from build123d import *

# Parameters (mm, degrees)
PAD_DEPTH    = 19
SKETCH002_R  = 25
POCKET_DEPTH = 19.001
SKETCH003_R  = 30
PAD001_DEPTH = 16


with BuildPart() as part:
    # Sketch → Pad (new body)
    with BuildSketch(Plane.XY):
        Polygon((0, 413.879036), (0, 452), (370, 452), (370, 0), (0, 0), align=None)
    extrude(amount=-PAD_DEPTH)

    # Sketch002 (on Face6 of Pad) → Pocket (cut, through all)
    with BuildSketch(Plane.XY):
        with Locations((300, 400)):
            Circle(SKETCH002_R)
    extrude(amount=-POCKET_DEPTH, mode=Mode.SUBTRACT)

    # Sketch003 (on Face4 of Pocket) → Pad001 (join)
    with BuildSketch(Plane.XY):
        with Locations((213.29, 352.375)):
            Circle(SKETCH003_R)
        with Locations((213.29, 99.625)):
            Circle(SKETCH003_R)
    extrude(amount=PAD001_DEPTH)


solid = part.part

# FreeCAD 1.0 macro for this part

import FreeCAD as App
import Part
import Sketcher

doc = App.newDocument("Part")
body = doc.addObject("PartDesign::Body", "Body")

# Sketch on XY plane
sketch1 = body.newObject("Sketcher::SketchObject", "Sketch")
sketch1.AttachmentSupport = (doc.getObject("XY_Plane"), [""])
sketch1.MapMode = "FlatFace"
sketch1.addGeometry([
    Part.LineSegment(App.Vector(0, 452, 0), App.Vector(0, 0, 0)),
    Part.LineSegment(App.Vector(0, 0, 0), App.Vector(370, 0, 0)),
    Part.LineSegment(App.Vector(370, 0, 0), App.Vector(370, 452, 0)),
    Part.LineSegment(App.Vector(370, 452, 0), App.Vector(0, 452, 0)),
], False)
sketch1.addConstraint([
    Sketcher.Constraint("Coincident", 0, 2, 1, 1),
    Sketcher.Constraint("Coincident", 1, 2, 2, 1),
    Sketcher.Constraint("Coincident", 2, 2, 3, 1),
    Sketcher.Constraint("Coincident", 3, 2, 0, 1),
    Sketcher.Constraint("Vertical", 0),
    Sketcher.Constraint("Horizontal", 1),
    Sketcher.Constraint("Vertical", 2),
    Sketcher.Constraint("Horizontal", 3),
    Sketcher.Constraint("Coincident", 0, 2, -1, 1),
    Sketcher.Constraint("DistanceX", 1, 1, 1, 2, 370.0),
    Sketcher.Constraint("DistanceY", 0, 2, 0, 1, 452.0),
])
pad1 = body.newObject("PartDesign::Pad", "Pad")
pad1.Profile = sketch1
pad1.Length = 19
pad1.Reversed = True

# Sketch on XY plane
sketch2 = body.newObject("Sketcher::SketchObject", "Sketch001")
sketch2.AttachmentSupport = (doc.getObject("XY_Plane"), [""])
sketch2.MapMode = "FlatFace"
sketch2.addGeometry(Part.Circle(App.Vector(300, 400, 0), App.Vector(0, 0, 1), 25), False)
sketch2.addConstraint([
    Sketcher.Constraint("Diameter", 0, 50.0),
    Sketcher.Constraint("DistanceX", -1, 1, 0, 3, 300.0),
    Sketcher.Constraint("DistanceY", -1, 1, 0, 3, 400.0),
])
pocket1 = body.newObject("PartDesign::Pocket", "Pocket")
pocket1.Profile = sketch2
pocket1.Type = "ThroughAll"

# Sketch on XY plane
sketch3 = body.newObject("Sketcher::SketchObject", "Sketch002")
sketch3.AttachmentSupport = (doc.getObject("XY_Plane"), [""])
sketch3.MapMode = "FlatFace"
sketch3.addGeometry([
    Part.Circle(App.Vector(213, 352, 0), App.Vector(0, 0, 1), 30),
    Part.Circle(App.Vector(213, 100, 0), App.Vector(0, 0, 1), 30),
], False)
sketch3.addConstraint([
    Sketcher.Constraint("Equal", 0, 1),
    Sketcher.Constraint("Vertical", 0, 3, 1, 3),
    Sketcher.Constraint("Diameter", 0, 60.0),
    Sketcher.Constraint("DistanceX", -1, 1, 0, 3, 213.29),
    Sketcher.Constraint("DistanceY", 1, 3, 0, 3, 252.75),
    Sketcher.Constraint("DistanceY", -1, 1, 0, 3, 352.375),
])
pad2 = body.newObject("PartDesign::Pad", "Pad001")
pad2.Profile = sketch3
pad2.Length = 16

doc.recompute()
